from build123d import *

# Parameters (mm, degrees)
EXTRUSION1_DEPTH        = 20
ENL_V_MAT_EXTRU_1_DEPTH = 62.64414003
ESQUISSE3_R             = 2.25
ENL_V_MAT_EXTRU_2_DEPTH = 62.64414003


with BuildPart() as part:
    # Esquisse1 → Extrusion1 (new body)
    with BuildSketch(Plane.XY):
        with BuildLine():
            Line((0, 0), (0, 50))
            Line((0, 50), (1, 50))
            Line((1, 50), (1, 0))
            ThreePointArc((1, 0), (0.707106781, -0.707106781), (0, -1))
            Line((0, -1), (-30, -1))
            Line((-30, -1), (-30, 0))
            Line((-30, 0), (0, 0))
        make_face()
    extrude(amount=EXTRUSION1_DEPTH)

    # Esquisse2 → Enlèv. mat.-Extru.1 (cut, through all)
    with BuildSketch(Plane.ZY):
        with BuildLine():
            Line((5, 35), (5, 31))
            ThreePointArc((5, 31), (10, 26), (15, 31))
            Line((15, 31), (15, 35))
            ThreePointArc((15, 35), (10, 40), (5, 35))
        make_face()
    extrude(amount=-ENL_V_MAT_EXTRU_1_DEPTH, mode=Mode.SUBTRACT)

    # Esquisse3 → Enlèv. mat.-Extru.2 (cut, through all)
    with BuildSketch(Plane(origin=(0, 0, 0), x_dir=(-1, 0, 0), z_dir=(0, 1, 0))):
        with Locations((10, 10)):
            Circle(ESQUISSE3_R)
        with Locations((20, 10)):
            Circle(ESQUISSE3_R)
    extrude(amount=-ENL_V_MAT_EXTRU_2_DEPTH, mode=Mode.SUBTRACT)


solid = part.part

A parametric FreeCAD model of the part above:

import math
import FreeCAD as App
import Part
import Sketcher
from FreeCAD import Vector
Q = App.Units.Quantity

doc = App.newDocument("Part")
body = doc.addObject("PartDesign::Body", "Body")

sketch1 = body.newObject("Sketcher::SketchObject", "Sketch")
sketch1.AttachmentSupport = (doc.getObject("XY_Plane"), [""])
sketch1.MapMode = "FlatFace"
sketch1.addGeometry([
    Part.LineSegment(Vector(0, 50, 0), Vector(0, 0, 0)),
    Part.LineSegment(Vector(0, 0, 0), Vector(-30, 0, 0)),
    Part.LineSegment(Vector(-30, 0, 0), Vector(-30, -1, 0)),
    Part.LineSegment(Vector(-30, -1, 0), Vector(0, -1, 0)),
    Part.ArcOfCircle(Part.Circle(Vector(0, 0, 0), Vector(0, 0, 1), 1), math.radians(-90), math.radians(0)),
    Part.LineSegment(Vector(1, 0, 0), Vector(1, 50, 0)),
    Part.LineSegment(Vector(1, 50, 0), Vector(0, 50, 0)),
], False)
sketch1.addConstraint([
    Sketcher.Constraint("Coincident", 0, 2, 1, 1),
    Sketcher.Constraint("Coincident", 1, 2, 2, 1),
    Sketcher.Constraint("Coincident", 2, 2, 3, 1),
    Sketcher.Constraint("Tangent", 3, 2, 4, 1),
    Sketcher.Constraint("Tangent", 4, 2, 5, 1),
    Sketcher.Constraint("Coincident", 5, 2, 6, 1),
    Sketcher.Constraint("Coincident", 6, 2, 0, 1),
    Sketcher.Constraint("Vertical", 0),
    Sketcher.Constraint("Horizontal", 1),
    Sketcher.Constraint("Vertical", 2),
    Sketcher.Constraint("Horizontal", 3),
    Sketcher.Constraint("Vertical", 5),
    Sketcher.Constraint("Horizontal", 6),
    Sketcher.Constraint("Coincident", 4, 3, -1, 1),
    Sketcher.Constraint("Coincident", 0, 2, -1, 1),
    Sketcher.Constraint("Radius", 4, Q("1 mm")),
    Sketcher.Constraint("DistanceX", 1, 2, 1, 1, Q("30 mm")),
    Sketcher.Constraint("DistanceY", 0, 2, 0, 1, Q("50 mm")),
])
pad1 = body.newObject("PartDesign::Pad", "Pad")
pad1.Profile = sketch1
pad1.Length = 20

sketch2 = body.newObject("Sketcher::SketchObject", "Sketch001")
sketch2.AttachmentSupport = (doc.getObject("YZ_Plane"), [""])
sketch2.MapMode = "FlatFace"
sketch2.addGeometry([
    Part.LineSegment(Vector(35, 5, 0), Vector(31, 5, 0)),
    Part.ArcOfCircle(Part.Circle(Vector(31, 10, 0), Vector(0, 0, 1), 5), math.radians(90), math.radians(270)),
    Part.LineSegment(Vector(31, 15, 0), Vector(35, 15, 0)),
    Part.ArcOfCircle(Part.Circle(Vector(35, 10, 0), Vector(0, 0, 1), 5), math.radians(-90), math.radians(90)),
], False)
sketch2.addConstraint([
    Sketcher.Constraint("Tangent", 0, 2, 1, 2),
    Sketcher.Constraint("Tangent", 1, 1, 2, 1),
    Sketcher.Constraint("Tangent", 2, 2, 3, 2),
    Sketcher.Constraint("Tangent", 3, 1, 0, 1),
    Sketcher.Constraint("Horizontal", 0),
    Sketcher.Constraint("Horizontal", 2),
    Sketcher.Constraint("Radius", 1, Q("5 mm")),
    Sketcher.Constraint("DistanceX", 0, 2, 0, 1, Q("4 mm")),
    Sketcher.Constraint("DistanceX", -1, 1, 1, 3, Q("31 mm")),
    Sketcher.Constraint("DistanceY", -1, 1, 1, 3, Q("10 mm")),
])
pocket1 = body.newObject("PartDesign::Pocket", "Pocket")
pocket1.Profile = sketch2
pocket1.Type = "ThroughAll"
pocket1.Reversed = True

sketch3 = body.newObject("Sketcher::SketchObject", "Sketch002")
sketch3.AttachmentSupport = (doc.getObject("XZ_Plane"), [""])
sketch3.MapMode = "FlatFace"
sketch3.addGeometry([
    Part.Circle(Vector(-10, 10, 0), Vector(0, 0, 1), 2.25),
    Part.Circle(Vector(-20, 10, 0), Vector(0, 0, 1), 2.25),
], False)
sketch3.addConstraint([
    Sketcher.Constraint("Equal", 0, 1),
    Sketcher.Constraint("Horizontal", 0, 3, 1, 3),
    Sketcher.Constraint("Diameter", 0, Q("4.5 mm")),
    Sketcher.Constraint("DistanceX", 0, 3, -1, 1, Q("10 mm")),
    Sketcher.Constraint("DistanceY", -1, 1, 0, 3, Q("10 mm")),
    Sketcher.Constraint("DistanceX", 1, 3, -1, 1, Q("20 mm")),
])
pocket2 = body.newObject("PartDesign::Pocket", "Pocket001")
pocket2.Profile = sketch3
pocket2.Type = "ThroughAll"
pocket2.Reversed = True

doc.recompute()
